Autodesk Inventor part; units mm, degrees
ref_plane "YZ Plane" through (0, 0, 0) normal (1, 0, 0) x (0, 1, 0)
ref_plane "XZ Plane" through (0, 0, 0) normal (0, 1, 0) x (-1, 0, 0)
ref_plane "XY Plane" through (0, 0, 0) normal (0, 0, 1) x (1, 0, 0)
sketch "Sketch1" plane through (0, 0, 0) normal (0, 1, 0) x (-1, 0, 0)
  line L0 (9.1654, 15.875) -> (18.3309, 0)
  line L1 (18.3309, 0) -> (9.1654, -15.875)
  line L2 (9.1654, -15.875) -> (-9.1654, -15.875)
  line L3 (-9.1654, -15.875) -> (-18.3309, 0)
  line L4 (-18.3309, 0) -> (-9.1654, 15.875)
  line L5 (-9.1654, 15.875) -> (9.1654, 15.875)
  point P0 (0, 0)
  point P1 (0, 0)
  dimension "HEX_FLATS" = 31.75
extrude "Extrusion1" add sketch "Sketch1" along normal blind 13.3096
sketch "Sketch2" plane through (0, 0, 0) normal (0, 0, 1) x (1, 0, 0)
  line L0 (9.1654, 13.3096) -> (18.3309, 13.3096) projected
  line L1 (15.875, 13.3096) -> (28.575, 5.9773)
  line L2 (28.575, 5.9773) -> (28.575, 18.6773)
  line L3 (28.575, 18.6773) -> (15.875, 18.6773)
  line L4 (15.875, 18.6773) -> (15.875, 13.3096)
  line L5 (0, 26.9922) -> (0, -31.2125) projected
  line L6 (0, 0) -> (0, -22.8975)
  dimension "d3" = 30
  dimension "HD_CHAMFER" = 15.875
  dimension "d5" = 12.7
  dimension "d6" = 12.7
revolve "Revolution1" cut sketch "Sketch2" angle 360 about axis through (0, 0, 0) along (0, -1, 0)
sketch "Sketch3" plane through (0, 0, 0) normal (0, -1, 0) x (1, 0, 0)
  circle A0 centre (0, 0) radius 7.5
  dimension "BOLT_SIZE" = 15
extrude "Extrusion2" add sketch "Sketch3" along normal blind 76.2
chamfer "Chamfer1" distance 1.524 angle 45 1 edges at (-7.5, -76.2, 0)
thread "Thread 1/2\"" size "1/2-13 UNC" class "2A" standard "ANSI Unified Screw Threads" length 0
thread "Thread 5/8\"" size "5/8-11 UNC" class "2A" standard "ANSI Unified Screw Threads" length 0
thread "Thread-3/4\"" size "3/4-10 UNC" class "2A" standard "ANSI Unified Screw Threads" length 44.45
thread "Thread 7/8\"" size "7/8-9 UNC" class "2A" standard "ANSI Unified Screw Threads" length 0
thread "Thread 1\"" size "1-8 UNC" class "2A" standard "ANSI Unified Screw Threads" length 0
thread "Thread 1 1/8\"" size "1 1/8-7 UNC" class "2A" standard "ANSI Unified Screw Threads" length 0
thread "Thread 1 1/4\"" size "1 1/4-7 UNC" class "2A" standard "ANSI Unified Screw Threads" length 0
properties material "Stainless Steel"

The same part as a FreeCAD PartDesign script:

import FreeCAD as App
import Part
import Sketcher
Q = App.Units.Quantity


def edges_at(feature, points):
    """Names of the edges that pass closest to the given points."""
    edges = feature.Shape.Edges
    near = lambda p: min(range(len(edges)), key=lambda i: edges[i].distToShape(Part.Vertex(*p))[0])
    return sorted({f"Edge{near(p) + 1}" for p in points})

doc = App.newDocument("Part")
body = doc.addObject("PartDesign::Body", "Body")

sketch1 = doc.addObject("Sketcher::SketchObject", "Sketch")
body.addObject(sketch1)
sketch1.AttachmentSupport = (doc.XZ_Plane, [""])
sketch1.MapMode = "FlatFace"
sketch1.addGeometry([
    Part.LineSegment(App.Vector(-18.3309, 0, 0), App.Vector(-9.1654, 15.875, 0)),
    Part.LineSegment(App.Vector(-9.1654, 15.875, 0), App.Vector(9.1654, 15.875, 0)),
    Part.LineSegment(App.Vector(9.1654, 15.875, 0), App.Vector(18.3309, 0, 0)),
    Part.LineSegment(App.Vector(18.3309, 0, 0), App.Vector(9.1654, -15.875, 0)),
    Part.LineSegment(App.Vector(9.1654, -15.875, 0), App.Vector(-9.1654, -15.875, 0)),
    Part.LineSegment(App.Vector(-9.1654, -15.875, 0), App.Vector(-18.3309, 0, 0)),
], False)
sketch1.addConstraint([
    Sketcher.Constraint("Coincident", 0, 2, 1, 1),
    Sketcher.Constraint("Coincident", 1, 2, 2, 1),
    Sketcher.Constraint("Coincident", 2, 2, 3, 1),
    Sketcher.Constraint("Coincident", 3, 2, 4, 1),
    Sketcher.Constraint("Coincident", 4, 2, 5, 1),
    Sketcher.Constraint("Coincident", 5, 2, 0, 1),
    Sketcher.Constraint("Horizontal", 1),
    Sketcher.Constraint("Horizontal", 4),
    Sketcher.Constraint("Symmetric", 0, 2, 3, 2, -1, 1),
    Sketcher.Constraint("Symmetric", 2, 2, 5, 2, -1, 1),
    Sketcher.Constraint("PointOnObject", 2, 2, -1),
    Sketcher.Constraint("Parallel", 2, 5),
    Sketcher.Constraint("Vertical", 1, 2, 3, 2),
    Sketcher.Constraint("DistanceY", 3, 2, 1, 2, Q("1.25 in")),
    Sketcher.Constraint("Angle", 0, Q("59.9998 deg")),
    Sketcher.Constraint("DistanceX", 1, 1, 1, 2, Q("18.3308 mm")),
])
pad1 = doc.addObject("PartDesign::Pad", "Pad")
body.addObject(pad1)
pad1.Profile = sketch1
pad1.Length = Q("0.524 in")
pad1.Reversed = True

sketch2 = doc.addObject("Sketcher::SketchObject", "Sketch001")
body.addObject(sketch2)
sketch2.AttachmentSupport = (doc.XY_Plane, [""])
sketch2.MapMode = "FlatFace"
sketch2.addGeometry([
    Part.LineSegment(App.Vector(15.875, 18.6773, 0), App.Vector(15.875, 13.3096, 0)),
    Part.LineSegment(App.Vector(15.875, 13.3096, 0), App.Vector(28.575, 5.9773, 0)),
    Part.LineSegment(App.Vector(28.575, 5.9773, 0), App.Vector(28.575, 18.6773, 0)),
    Part.LineSegment(App.Vector(28.575, 18.6773, 0), App.Vector(15.875, 18.6773, 0)),
], False)
sketch2.addConstraint([
    Sketcher.Constraint("Coincident", 0, 2, 1, 1),
    Sketcher.Constraint("Coincident", 1, 2, 2, 1),
    Sketcher.Constraint("Coincident", 2, 2, 3, 1),
    Sketcher.Constraint("Coincident", 3, 2, 0, 1),
    Sketcher.Constraint("Vertical", 0),
    Sketcher.Constraint("Vertical", 2),
    Sketcher.Constraint("Horizontal", 3),
    Sketcher.Constraint("Equal", 3, 2),
    Sketcher.Constraint("DistanceX", 3, 2, 3, 1, Q("0.5 in")),
    Sketcher.Constraint("Angle", 1, Q("-29.9998 deg")),
    Sketcher.Constraint("DistanceX", -1, 1, 0, 2, Q("0.625 in")),
    Sketcher.Constraint("DistanceY", -1, 1, 0, 2, Q("0.524 in")),
])
groove = doc.addObject("PartDesign::Groove", "Groove")
body.addObject(groove)
groove.Profile = sketch2
groove.ReferenceAxis = (sketch2, ["V_Axis"])
groove.Angle = 360

sketch3 = doc.addObject("Sketcher::SketchObject", "Sketch002")
body.addObject(sketch3)
sketch3.AttachmentSupport = (doc.XZ_Plane, [""])
sketch3.MapMode = "FlatFace"
sketch3.addGeometry(Part.Circle(App.Vector(0, 0, 0), App.Vector(0, 0, 1), 7.5), False)
sketch3.addConstraint([
    Sketcher.Constraint("Coincident", 0, 3, -1, 1),
    Sketcher.Constraint("Diameter", 0, Q("15 mm")),
])
pad2 = doc.addObject("PartDesign::Pad", "Pad001")
body.addObject(pad2)
pad2.Profile = sketch3
pad2.Length = Q("3 in")
doc.recompute()

chamfer = doc.addObject("PartDesign::Chamfer", "Chamfer")
body.addObject(chamfer)
chamfer.Base = (pad2, edges_at(pad2, [(-7.5, -76.2, 0)]))
chamfer.Size = Q("0.06 in")

doc.recompute()
